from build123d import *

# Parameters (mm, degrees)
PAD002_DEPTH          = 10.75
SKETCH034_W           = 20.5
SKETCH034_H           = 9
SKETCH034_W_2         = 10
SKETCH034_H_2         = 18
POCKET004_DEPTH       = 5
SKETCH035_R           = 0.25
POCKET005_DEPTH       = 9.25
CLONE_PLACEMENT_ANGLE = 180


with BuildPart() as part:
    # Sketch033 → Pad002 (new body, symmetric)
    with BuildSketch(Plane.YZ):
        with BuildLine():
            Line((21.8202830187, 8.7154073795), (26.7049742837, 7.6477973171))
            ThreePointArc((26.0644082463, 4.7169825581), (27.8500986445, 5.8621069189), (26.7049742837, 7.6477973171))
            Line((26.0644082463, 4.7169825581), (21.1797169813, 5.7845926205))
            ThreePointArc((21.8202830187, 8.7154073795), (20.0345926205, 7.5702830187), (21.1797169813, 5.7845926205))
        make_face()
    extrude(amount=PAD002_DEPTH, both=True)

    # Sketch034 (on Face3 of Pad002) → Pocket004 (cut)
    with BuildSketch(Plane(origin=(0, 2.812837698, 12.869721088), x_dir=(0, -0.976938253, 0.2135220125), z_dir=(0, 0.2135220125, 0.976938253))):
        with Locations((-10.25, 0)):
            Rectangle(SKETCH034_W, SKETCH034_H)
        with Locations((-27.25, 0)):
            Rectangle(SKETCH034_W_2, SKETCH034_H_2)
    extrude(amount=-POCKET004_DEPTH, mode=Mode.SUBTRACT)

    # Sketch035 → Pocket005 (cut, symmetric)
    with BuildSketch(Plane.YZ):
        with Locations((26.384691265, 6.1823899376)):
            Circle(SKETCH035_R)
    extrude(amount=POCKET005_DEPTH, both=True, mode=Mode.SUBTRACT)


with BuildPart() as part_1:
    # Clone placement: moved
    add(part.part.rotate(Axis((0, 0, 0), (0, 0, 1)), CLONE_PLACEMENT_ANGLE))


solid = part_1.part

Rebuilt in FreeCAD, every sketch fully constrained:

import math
import FreeCAD as App
import Part
import Sketcher
Q = App.Units.Quantity

doc = App.newDocument("Part")
body = doc.addObject("PartDesign::Body", "Body")

# Sketch on YZ plane
sketch1 = doc.addObject("Sketcher::SketchObject", "Sketch")
body.addObject(sketch1)
sketch1.AttachmentSupport = (doc.YZ_Plane, [""])
sketch1.MapMode = "FlatFace"
sketch1.addGeometry(Part.LineSegment(App.Vector(26.704974, 7.647797, 0), App.Vector(21.820283, 8.715407, 0)), False)
sketch1.addGeometry(Part.ArcOfCircle(Part.Circle(App.Vector(21.5, 7.25, 0), App.Vector(0, 0, 1), 1.5), math.radians(77.671169), math.radians(257.671169)), False)
sketch1.addGeometry(Part.LineSegment(App.Vector(21.179717, 5.784593, 0), App.Vector(26.064408, 4.716983, 0)), False)
sketch1.addGeometry(Part.ArcOfCircle(Part.Circle(App.Vector(26.384691, 6.18239, 0), App.Vector(0, 0, 1), 1.5), math.radians(-102.328831), math.radians(77.671169)), False)
sketch1.addConstraint(Sketcher.Constraint("Tangent", 0, 2, 1, 1))
sketch1.addConstraint(Sketcher.Constraint("Tangent", 1, 2, 2, 1))
sketch1.addConstraint(Sketcher.Constraint("Tangent", 2, 2, 3, 1))
sketch1.addConstraint(Sketcher.Constraint("Tangent", 3, 2, 0, 1))
sketch1.addConstraint(Sketcher.Constraint("Equal", 1, 3))
sketch1.addConstraint(Sketcher.Constraint("Radius", 1, Q("1.5 mm")))
sketch1.addConstraint(Sketcher.Constraint("Distance", 0, Q("5 mm")))
sketch1.addConstraint(Sketcher.Constraint("DistanceX", -1, 1, 1, 3, Q("21.5 mm")))
sketch1.addConstraint(Sketcher.Constraint("DistanceY", -1, 1, 1, 3, Q("7.25 mm")))
sketch1.addConstraint(Sketcher.Constraint("DistanceX", -1, 1, 3, 3, Q("26.384691 mm")))
pad1 = doc.addObject("PartDesign::Pad", "Pad")
body.addObject(pad1)
pad1.Profile = sketch1
pad1.Length = 21.5
pad1.Midplane = True

# Sketch on an angled plane
sketch2 = doc.addObject("Sketcher::SketchObject", "Sketch001")
body.addObject(sketch2)
sketch2.Placement = App.Placement(App.Vector(0, 2.812838, 12.869721), App.Rotation(App.Vector(0, -0.976938253, 0.213522013), App.Vector(1, 0, 0), App.Vector(0, 0.213522013, 0.976938253), "ZXY"))
sketch2.addGeometry(Part.LineSegment(App.Vector(-20.5, 4.5, 0), App.Vector(-20.5, -4.5, 0)), False)
sketch2.addGeometry(Part.LineSegment(App.Vector(-20.5, -4.5, 0), App.Vector(0, -4.5, 0)), False)
sketch2.addGeometry(Part.LineSegment(App.Vector(0, -4.5, 0), App.Vector(0, 4.5, 0)), False)
sketch2.addGeometry(Part.LineSegment(App.Vector(0, 4.5, 0), App.Vector(-20.5, 4.5, 0)), False)
sketch2.addGeometry(Part.LineSegment(App.Vector(-32.25, 9, 0), App.Vector(-32.25, -9, 0)), False)
sketch2.addGeometry(Part.LineSegment(App.Vector(-32.25, -9, 0), App.Vector(-22.25, -9, 0)), False)
sketch2.addGeometry(Part.LineSegment(App.Vector(-22.25, -9, 0), App.Vector(-22.25, 9, 0)), False)
sketch2.addGeometry(Part.LineSegment(App.Vector(-22.25, 9, 0), App.Vector(-32.25, 9, 0)), False)
sketch2.addConstraint(Sketcher.Constraint("Coincident", 0, 2, 1, 1))
sketch2.addConstraint(Sketcher.Constraint("Coincident", 1, 2, 2, 1))
sketch2.addConstraint(Sketcher.Constraint("Coincident", 2, 2, 3, 1))
sketch2.addConstraint(Sketcher.Constraint("Coincident", 3, 2, 0, 1))
sketch2.addConstraint(Sketcher.Constraint("Coincident", 4, 2, 5, 1))
sketch2.addConstraint(Sketcher.Constraint("Coincident", 5, 2, 6, 1))
sketch2.addConstraint(Sketcher.Constraint("Coincident", 6, 2, 7, 1))
sketch2.addConstraint(Sketcher.Constraint("Coincident", 7, 2, 4, 1))
sketch2.addConstraint(Sketcher.Constraint("Vertical", 0))
sketch2.addConstraint(Sketcher.Constraint("Horizontal", 1))
sketch2.addConstraint(Sketcher.Constraint("Vertical", 2))
sketch2.addConstraint(Sketcher.Constraint("Horizontal", 3))
sketch2.addConstraint(Sketcher.Constraint("Vertical", 4))
sketch2.addConstraint(Sketcher.Constraint("Horizontal", 5))
sketch2.addConstraint(Sketcher.Constraint("Vertical", 6))
sketch2.addConstraint(Sketcher.Constraint("Horizontal", 7))
sketch2.addConstraint(Sketcher.Constraint("Symmetric", 1, 2, 2, 2, -1, 1))
sketch2.addConstraint(Sketcher.Constraint("DistanceX", 5, 1, 5, 2, Q("10 mm")))
sketch2.addConstraint(Sketcher.Constraint("DistanceY", 0, 2, 0, 1, Q("9 mm")))
sketch2.addConstraint(Sketcher.Constraint("DistanceY", 4, 2, 4, 1, Q("18 mm")))
sketch2.addConstraint(Sketcher.Constraint("DistanceX", 1, 1, 1, 2, Q("20.5 mm")))
sketch2.addConstraint(Sketcher.Constraint("DistanceY", 4, 2, -1, 1, Q("9 mm")))
sketch2.addConstraint(Sketcher.Constraint("DistanceX", 4, 2, -1, 1, Q("32.25 mm")))
pocket1 = doc.addObject("PartDesign::Pocket", "Pocket")
body.addObject(pocket1)
pocket1.Profile = sketch2
pocket1.Length = 5

# Sketch on YZ plane
sketch3 = doc.addObject("Sketcher::SketchObject", "Sketch002")
body.addObject(sketch3)
sketch3.AttachmentSupport = (doc.YZ_Plane, [""])
sketch3.MapMode = "FlatFace"
sketch3.addGeometry(Part.Circle(App.Vector(26.384691, 6.18239, 0), App.Vector(0, 0, 1), 0.25), False)
sketch3.addConstraint(Sketcher.Constraint("Diameter", 0, Q("0.5 mm")))
sketch3.addConstraint(Sketcher.Constraint("DistanceX", -1, 1, 0, 3, Q("26.384691 mm")))
sketch3.addConstraint(Sketcher.Constraint("DistanceY", -1, 1, 0, 3, Q("6.18239 mm")))
pocket2 = doc.addObject("PartDesign::Pocket", "Pocket001")
body.addObject(pocket2)
pocket2.Profile = sketch3
pocket2.Length = 18.5
pocket2.Midplane = True
body2 = doc.addObject("PartDesign::Body", "Body001")
doc.recompute()

body.Placement = App.Placement(App.Vector(0, 0, 0), App.Rotation(App.Vector(0, 0, 1), 180))
boolean = doc.addObject("PartDesign::Boolean", "Boolean")
body2.addObject(boolean)
boolean.Type = "Fuse"
boolean.addObjects([body])

doc.recompute()
